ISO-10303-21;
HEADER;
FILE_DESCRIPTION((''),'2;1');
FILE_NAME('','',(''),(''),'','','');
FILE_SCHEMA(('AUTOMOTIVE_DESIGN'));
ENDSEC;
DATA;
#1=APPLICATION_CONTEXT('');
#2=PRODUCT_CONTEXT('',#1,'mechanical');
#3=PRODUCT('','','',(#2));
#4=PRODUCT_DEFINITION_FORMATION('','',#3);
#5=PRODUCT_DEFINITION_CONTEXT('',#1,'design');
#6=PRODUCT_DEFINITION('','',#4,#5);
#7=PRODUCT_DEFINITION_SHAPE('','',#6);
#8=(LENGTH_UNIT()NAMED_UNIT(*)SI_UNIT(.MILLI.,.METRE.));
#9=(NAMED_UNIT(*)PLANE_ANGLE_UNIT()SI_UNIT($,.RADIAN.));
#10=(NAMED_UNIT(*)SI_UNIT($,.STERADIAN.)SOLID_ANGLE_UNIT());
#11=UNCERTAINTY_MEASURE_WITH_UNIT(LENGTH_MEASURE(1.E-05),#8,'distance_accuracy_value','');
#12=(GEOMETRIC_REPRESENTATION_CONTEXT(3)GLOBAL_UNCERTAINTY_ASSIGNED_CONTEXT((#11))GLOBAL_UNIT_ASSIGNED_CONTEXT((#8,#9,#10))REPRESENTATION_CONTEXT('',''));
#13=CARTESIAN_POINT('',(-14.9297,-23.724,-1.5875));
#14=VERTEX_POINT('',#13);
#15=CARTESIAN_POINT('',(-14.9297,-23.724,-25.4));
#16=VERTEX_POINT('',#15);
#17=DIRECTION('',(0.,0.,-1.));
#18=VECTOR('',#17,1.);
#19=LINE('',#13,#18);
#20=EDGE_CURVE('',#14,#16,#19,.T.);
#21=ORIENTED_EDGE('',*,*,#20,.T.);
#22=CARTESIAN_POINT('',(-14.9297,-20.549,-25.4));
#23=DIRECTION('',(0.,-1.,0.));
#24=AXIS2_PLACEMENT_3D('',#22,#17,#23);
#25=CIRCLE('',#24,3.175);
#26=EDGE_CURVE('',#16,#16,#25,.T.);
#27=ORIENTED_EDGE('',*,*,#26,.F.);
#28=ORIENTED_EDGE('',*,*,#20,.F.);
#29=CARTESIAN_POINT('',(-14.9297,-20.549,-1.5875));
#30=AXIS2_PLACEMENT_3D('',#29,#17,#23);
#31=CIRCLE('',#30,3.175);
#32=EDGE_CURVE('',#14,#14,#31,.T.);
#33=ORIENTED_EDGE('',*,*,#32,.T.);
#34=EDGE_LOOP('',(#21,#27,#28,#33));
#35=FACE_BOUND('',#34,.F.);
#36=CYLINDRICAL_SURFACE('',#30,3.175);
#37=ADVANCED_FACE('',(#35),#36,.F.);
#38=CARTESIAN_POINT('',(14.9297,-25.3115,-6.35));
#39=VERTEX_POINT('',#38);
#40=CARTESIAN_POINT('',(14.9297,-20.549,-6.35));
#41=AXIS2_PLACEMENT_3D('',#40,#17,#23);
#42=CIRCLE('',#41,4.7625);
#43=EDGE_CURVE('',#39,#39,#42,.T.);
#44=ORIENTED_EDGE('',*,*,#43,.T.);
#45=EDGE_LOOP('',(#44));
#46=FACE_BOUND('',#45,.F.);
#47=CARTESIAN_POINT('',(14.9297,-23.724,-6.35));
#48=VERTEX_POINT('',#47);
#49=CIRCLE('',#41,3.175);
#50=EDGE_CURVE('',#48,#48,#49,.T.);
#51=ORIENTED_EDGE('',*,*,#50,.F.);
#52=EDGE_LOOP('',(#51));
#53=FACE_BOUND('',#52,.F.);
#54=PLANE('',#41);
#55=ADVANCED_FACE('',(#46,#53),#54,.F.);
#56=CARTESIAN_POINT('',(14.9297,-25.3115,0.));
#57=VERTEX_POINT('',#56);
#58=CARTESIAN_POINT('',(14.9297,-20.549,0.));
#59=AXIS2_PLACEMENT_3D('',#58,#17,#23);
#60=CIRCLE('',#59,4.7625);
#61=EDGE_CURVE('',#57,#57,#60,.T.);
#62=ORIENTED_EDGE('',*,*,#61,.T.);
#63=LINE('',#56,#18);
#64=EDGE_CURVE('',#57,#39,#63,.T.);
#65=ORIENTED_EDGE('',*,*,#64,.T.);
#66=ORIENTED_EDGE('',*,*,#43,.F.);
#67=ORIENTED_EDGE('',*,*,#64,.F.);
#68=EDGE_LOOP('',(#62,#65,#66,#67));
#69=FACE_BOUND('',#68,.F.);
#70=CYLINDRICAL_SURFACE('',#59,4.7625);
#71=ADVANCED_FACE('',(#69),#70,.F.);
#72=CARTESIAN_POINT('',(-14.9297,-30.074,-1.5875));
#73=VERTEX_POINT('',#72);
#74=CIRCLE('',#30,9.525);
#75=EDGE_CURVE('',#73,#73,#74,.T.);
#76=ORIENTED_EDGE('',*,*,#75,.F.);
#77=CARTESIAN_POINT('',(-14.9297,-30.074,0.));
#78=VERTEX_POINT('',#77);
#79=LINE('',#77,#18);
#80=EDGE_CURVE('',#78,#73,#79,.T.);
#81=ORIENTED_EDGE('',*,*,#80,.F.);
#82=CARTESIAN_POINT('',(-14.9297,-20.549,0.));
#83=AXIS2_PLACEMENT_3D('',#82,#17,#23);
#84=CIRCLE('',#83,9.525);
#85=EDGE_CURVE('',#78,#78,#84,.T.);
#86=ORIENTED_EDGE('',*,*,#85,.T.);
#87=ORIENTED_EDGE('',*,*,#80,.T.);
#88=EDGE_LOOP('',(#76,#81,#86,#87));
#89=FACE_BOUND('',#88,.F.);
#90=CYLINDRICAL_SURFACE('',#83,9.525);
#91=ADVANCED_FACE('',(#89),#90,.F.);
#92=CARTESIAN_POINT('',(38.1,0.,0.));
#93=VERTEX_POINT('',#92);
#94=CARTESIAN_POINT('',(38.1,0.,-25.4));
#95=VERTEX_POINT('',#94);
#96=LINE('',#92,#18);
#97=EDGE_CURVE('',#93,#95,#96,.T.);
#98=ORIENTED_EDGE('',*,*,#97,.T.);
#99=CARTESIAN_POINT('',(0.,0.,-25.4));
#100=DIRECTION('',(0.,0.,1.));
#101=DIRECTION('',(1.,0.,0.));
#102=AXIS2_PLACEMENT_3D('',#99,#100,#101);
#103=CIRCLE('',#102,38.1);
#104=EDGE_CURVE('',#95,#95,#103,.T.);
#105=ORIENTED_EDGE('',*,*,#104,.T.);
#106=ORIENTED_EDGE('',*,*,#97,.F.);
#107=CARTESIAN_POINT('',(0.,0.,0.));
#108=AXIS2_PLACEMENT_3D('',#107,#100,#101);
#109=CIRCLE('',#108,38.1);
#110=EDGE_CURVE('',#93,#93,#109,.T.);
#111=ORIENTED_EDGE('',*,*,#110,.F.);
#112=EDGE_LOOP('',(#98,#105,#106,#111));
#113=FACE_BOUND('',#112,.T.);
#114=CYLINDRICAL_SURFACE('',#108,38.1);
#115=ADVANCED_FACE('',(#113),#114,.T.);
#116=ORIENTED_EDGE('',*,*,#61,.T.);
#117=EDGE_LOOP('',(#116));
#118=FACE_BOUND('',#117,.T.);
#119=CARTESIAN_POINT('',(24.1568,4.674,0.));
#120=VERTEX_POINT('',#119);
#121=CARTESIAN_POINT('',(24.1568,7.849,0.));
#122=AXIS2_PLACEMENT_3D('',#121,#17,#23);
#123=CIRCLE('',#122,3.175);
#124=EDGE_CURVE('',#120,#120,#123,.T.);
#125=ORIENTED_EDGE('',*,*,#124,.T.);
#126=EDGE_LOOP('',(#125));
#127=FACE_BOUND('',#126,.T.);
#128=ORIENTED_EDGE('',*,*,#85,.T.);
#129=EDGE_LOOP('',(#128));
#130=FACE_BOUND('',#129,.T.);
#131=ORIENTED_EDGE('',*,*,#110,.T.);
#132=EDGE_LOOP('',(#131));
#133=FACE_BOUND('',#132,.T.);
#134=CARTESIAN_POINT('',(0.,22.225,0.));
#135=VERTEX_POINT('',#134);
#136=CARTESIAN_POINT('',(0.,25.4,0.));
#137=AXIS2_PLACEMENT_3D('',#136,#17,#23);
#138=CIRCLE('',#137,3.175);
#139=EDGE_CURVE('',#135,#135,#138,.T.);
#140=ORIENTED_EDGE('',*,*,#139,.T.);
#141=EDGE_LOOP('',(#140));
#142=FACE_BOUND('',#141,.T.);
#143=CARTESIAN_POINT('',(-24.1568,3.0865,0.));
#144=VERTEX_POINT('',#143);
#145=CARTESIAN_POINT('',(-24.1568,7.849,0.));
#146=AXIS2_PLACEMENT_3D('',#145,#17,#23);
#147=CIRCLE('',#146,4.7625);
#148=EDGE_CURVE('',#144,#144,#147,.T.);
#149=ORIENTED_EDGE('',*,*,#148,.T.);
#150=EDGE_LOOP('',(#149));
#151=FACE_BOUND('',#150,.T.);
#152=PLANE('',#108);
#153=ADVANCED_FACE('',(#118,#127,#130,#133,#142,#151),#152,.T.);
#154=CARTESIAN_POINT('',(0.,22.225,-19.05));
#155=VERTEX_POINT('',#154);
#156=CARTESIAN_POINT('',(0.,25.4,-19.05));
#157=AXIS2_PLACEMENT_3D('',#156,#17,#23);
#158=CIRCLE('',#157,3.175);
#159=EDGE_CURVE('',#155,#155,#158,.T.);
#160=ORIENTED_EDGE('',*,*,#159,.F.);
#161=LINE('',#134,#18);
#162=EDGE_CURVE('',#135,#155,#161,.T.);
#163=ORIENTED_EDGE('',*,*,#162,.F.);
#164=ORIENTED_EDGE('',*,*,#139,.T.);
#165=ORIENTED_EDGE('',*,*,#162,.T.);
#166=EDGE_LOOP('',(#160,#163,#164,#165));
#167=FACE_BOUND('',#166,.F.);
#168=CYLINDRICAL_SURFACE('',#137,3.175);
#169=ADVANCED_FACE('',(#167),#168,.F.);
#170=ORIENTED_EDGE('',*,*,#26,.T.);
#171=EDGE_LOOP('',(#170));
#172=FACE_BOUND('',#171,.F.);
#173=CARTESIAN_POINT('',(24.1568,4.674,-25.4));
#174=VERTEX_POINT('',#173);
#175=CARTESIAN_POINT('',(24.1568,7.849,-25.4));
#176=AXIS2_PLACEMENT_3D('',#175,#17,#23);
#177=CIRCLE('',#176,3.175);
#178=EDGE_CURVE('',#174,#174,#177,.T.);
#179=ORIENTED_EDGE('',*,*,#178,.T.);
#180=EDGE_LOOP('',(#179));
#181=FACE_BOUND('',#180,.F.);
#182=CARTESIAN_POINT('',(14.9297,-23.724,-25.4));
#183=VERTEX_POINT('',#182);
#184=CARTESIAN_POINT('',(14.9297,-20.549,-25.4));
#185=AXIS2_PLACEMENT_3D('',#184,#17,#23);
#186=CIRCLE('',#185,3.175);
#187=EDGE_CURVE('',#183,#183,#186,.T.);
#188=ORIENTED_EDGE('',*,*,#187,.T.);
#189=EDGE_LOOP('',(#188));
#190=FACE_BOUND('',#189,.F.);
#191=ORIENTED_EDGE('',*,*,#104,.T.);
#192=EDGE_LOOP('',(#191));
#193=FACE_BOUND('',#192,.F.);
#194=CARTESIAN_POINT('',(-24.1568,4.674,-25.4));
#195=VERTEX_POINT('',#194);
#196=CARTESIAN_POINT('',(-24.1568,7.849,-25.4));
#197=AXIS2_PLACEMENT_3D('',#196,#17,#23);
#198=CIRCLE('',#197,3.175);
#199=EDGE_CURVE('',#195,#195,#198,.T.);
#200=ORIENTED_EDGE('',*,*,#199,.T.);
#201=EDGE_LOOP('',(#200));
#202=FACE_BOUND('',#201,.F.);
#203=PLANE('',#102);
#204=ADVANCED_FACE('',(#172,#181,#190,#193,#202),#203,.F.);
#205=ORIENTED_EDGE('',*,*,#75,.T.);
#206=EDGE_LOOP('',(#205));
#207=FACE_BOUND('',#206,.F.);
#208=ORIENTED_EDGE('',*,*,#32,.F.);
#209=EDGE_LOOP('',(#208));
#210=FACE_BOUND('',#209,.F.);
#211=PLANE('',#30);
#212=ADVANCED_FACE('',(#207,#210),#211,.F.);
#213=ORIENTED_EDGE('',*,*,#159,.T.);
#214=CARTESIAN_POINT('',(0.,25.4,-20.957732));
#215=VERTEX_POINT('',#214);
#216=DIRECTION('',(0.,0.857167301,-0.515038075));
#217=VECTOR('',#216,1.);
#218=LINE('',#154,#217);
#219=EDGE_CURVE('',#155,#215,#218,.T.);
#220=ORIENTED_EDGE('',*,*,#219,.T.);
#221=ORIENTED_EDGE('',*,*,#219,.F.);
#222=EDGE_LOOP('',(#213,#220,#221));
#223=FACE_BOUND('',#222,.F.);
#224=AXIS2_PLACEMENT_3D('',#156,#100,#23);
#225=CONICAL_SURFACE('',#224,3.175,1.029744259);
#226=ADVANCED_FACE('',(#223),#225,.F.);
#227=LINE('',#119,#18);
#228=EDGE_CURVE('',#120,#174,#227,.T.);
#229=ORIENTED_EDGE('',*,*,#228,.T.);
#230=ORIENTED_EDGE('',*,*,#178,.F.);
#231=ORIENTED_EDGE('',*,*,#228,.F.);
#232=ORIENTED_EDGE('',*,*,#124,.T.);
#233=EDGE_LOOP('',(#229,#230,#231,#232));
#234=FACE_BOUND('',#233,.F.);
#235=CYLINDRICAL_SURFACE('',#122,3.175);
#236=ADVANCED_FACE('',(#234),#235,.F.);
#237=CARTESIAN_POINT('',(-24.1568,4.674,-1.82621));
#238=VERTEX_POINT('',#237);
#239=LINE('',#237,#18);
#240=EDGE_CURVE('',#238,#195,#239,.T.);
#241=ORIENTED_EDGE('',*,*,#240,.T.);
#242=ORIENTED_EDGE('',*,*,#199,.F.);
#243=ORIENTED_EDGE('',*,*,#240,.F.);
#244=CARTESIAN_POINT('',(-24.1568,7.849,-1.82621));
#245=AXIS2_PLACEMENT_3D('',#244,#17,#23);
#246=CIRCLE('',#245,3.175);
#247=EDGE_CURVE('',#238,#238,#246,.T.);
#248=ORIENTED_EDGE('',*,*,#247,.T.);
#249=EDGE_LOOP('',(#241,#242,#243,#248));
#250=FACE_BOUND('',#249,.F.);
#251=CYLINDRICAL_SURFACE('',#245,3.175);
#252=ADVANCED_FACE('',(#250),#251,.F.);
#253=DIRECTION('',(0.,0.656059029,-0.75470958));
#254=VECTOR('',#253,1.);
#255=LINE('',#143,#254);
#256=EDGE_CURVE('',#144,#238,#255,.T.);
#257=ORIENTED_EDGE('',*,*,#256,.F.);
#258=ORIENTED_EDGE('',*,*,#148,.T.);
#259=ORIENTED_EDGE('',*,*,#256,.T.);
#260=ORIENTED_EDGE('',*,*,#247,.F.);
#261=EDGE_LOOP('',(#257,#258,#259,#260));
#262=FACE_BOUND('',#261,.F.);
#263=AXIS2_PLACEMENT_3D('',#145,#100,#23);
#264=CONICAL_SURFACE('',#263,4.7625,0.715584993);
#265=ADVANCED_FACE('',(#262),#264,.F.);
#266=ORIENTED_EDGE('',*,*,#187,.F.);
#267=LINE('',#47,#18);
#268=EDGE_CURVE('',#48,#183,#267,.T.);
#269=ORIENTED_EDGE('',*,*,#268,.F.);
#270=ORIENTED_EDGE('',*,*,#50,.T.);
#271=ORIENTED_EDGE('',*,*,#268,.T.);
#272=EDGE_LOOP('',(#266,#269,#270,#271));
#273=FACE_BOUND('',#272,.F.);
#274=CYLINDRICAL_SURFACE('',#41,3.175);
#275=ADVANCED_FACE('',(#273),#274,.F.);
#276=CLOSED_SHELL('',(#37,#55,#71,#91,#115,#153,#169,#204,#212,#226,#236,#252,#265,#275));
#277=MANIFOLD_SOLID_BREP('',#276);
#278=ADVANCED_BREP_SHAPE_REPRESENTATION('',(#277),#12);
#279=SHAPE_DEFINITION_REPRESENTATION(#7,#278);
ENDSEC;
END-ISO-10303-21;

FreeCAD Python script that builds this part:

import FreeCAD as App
import Part
import Sketcher
Q = App.Units.Quantity

doc = App.newDocument("Part")
body = doc.addObject("PartDesign::Body", "Body")

# Sketch on XY plane
sketch1 = body.newObject("Sketcher::SketchObject", "Sketch")
sketch1.AttachmentSupport = (doc.getObject("XY_Plane"), [""])
sketch1.MapMode = "FlatFace"
sketch1.addGeometry(Part.Circle(App.Vector(0, 0, 0), App.Vector(0, 0, 1), 38.1), False)
sketch1.addConstraint([
    Sketcher.Constraint("Coincident", 0, 3, -1, 1),
    Sketcher.Constraint("Diameter", 0, Q("3 in")),
])
pad1 = body.newObject("PartDesign::Pad", "Pad")
pad1.Profile = sketch1
pad1.Length = Q("1 in")
pad1.Reversed = True

# Sketch on XY plane
sketch2 = body.newObject("Sketcher::SketchObject", "Sketch001")
sketch2.AttachmentSupport = (doc.getObject("XY_Plane"), [""])
sketch2.MapMode = "FlatFace"
sketch2.addGeometry(Part.Circle(App.Vector(0, 25.4, 0), App.Vector(0, 0, 1), 3.175), False)
sketch2.addConstraint([
    Sketcher.Constraint("PointOnObject", 0, 3, -2),
    Sketcher.Constraint("Diameter", 0, Q("0.25 in")),
    Sketcher.Constraint("DistanceY", -1, 1, 0, 3, Q("1 in")),
])
doc.recompute()
hole = body.newObject("PartDesign::Hole", "Hole")
hole.Profile = sketch2
hole.ThreadType = "None"
hole.Diameter = Q("0.25 in")
hole.DepthType = "Dimension"
hole.Depth = Q("0.75 in")
hole.DrillPoint = "Angled"
hole.DrillPointAngle = 118

# Sketch on XY plane
sketch3 = body.newObject("Sketcher::SketchObject", "Sketch002")
sketch3.AttachmentSupport = (doc.getObject("XY_Plane"), [""])
sketch3.MapMode = "FlatFace"
sketch3.addGeometry(Part.Circle(App.Vector(24.1568, 7.849, 0), App.Vector(0, 0, 1), 3.175), False)
sketch3.addConstraint([
    Sketcher.Constraint("Diameter", 0, Q("0.25 in")),
    Sketcher.Constraint("DistanceX", -1, 1, 0, 3, Q("24.1568 mm")),
    Sketcher.Constraint("DistanceY", -1, 1, 0, 3, Q("7.849 mm")),
])
doc.recompute()
hole2 = body.newObject("PartDesign::Hole", "Hole001")
hole2.Profile = sketch3
hole2.ThreadType = "None"
hole2.Diameter = Q("0.25 in")
hole2.DepthType = "ThroughAll"

# Sketch on XY plane
sketch4 = body.newObject("Sketcher::SketchObject", "Sketch003")
sketch4.AttachmentSupport = (doc.getObject("XY_Plane"), [""])
sketch4.MapMode = "FlatFace"
sketch4.addGeometry(Part.Circle(App.Vector(14.9297, -20.549, 0), App.Vector(0, 0, 1), 3.175), False)
sketch4.addConstraint([
    Sketcher.Constraint("Diameter", 0, Q("0.25 in")),
    Sketcher.Constraint("DistanceX", -1, 1, 0, 3, Q("14.9297 mm")),
    Sketcher.Constraint("DistanceY", 0, 3, -1, 1, Q("20.549 mm")),
])
doc.recompute()
hole3 = body.newObject("PartDesign::Hole", "Hole002")
hole3.Profile = sketch4
hole3.ThreadType = "None"
hole3.Diameter = Q("0.25 in")
hole3.DepthType = "ThroughAll"
hole3.HoleCutType = "Counterbore"
hole3.HoleCutDiameter = Q("0.375 in")
hole3.HoleCutDepth = Q("0.25 in")

# Sketch on XY plane
sketch5 = body.newObject("Sketcher::SketchObject", "Sketch004")
sketch5.AttachmentSupport = (doc.getObject("XY_Plane"), [""])
sketch5.MapMode = "FlatFace"
sketch5.addGeometry(Part.Circle(App.Vector(-14.9297, -20.549, 0), App.Vector(0, 0, 1), 3.175), False)
sketch5.addConstraint([
    Sketcher.Constraint("Diameter", 0, Q("0.25 in")),
    Sketcher.Constraint("DistanceX", 0, 3, -1, 1, Q("14.9297 mm")),
    Sketcher.Constraint("DistanceY", 0, 3, -1, 1, Q("20.549 mm")),
])
doc.recompute()
hole4 = body.newObject("PartDesign::Hole", "Hole003")
hole4.Profile = sketch5
hole4.ThreadType = "None"
hole4.Diameter = Q("0.25 in")
hole4.DepthType = "ThroughAll"
hole4.HoleCutType = "Counterbore"
hole4.HoleCutDiameter = Q("0.75 in")
hole4.HoleCutDepth = Q("0.0625 in")

# Sketch on XY plane
sketch6 = body.newObject("Sketcher::SketchObject", "Sketch005")
sketch6.AttachmentSupport = (doc.getObject("XY_Plane"), [""])
sketch6.MapMode = "FlatFace"
sketch6.addGeometry(Part.Circle(App.Vector(-24.1568, 7.849, 0), App.Vector(0, 0, 1), 3.175), False)
sketch6.addConstraint([
    Sketcher.Constraint("Diameter", 0, Q("0.25 in")),
    Sketcher.Constraint("DistanceX", 0, 3, -1, 1, Q("24.1568 mm")),
    Sketcher.Constraint("DistanceY", -1, 1, 0, 3, Q("7.849 mm")),
])
doc.recompute()
hole5 = body.newObject("PartDesign::Hole", "Hole004")
hole5.Profile = sketch6
hole5.ThreadType = "None"
hole5.Diameter = Q("0.25 in")
hole5.DepthType = "ThroughAll"
hole5.HoleCutType = "Countersink"
hole5.HoleCutDiameter = Q("0.375 in")
hole5.HoleCutCountersinkAngle = 82

doc.recompute()
